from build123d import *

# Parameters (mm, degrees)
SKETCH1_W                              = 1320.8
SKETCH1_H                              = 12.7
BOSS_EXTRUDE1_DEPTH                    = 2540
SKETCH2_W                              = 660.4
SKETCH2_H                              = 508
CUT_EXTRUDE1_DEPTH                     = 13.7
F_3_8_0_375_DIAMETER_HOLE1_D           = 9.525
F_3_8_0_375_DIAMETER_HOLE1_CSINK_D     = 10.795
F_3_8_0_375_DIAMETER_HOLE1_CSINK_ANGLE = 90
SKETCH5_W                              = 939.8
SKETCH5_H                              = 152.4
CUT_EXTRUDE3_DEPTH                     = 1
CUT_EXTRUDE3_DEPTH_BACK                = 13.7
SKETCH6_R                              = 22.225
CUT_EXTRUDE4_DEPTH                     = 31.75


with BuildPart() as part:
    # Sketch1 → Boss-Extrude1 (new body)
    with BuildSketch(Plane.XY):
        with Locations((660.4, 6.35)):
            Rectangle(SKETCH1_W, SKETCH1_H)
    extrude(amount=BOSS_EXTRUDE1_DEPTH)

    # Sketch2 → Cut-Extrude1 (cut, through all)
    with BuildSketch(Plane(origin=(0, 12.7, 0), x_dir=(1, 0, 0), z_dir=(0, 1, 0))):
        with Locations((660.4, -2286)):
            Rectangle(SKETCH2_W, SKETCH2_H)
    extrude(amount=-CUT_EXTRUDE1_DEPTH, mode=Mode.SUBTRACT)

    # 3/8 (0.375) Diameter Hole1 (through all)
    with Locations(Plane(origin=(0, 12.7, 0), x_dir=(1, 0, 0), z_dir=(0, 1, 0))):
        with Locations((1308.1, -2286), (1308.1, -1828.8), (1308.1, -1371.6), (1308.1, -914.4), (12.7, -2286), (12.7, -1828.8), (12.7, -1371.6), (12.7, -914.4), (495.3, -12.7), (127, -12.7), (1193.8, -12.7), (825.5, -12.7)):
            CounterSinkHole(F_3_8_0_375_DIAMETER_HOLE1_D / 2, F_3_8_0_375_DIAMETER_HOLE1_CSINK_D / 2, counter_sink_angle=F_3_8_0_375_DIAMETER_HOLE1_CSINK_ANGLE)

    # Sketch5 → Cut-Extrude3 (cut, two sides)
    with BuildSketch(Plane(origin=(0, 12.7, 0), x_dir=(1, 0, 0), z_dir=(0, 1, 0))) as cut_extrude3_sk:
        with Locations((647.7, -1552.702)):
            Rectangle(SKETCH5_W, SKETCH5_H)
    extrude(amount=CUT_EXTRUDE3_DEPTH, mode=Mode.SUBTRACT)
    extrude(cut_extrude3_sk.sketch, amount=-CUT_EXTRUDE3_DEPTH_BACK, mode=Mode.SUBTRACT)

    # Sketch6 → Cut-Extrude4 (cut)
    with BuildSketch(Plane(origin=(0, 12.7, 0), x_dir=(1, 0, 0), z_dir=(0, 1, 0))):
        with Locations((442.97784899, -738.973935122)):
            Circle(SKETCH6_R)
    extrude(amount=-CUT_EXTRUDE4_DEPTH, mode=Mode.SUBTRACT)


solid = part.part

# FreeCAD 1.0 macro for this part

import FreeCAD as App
import Part
import Sketcher
from FreeCAD import Vector
Q = App.Units.Quantity

doc = App.newDocument("Part")
body = doc.addObject("PartDesign::Body", "Body")

# Sketch on XY plane
sketch1 = body.newObject("Sketcher::SketchObject", "Sketch")
sketch1.AttachmentSupport = (doc.getObject("XY_Plane"), [""])
sketch1.MapMode = "FlatFace"
sketch1.addGeometry([
    Part.LineSegment(Vector(0, 13, 0), Vector(0, 0, 0)),
    Part.LineSegment(Vector(0, 0, 0), Vector(1321, 0, 0)),
    Part.LineSegment(Vector(1321, 0, 0), Vector(1321, 13, 0)),
    Part.LineSegment(Vector(1321, 13, 0), Vector(0, 13, 0)),
], False)
sketch1.addConstraint([
    Sketcher.Constraint("Coincident", 0, 2, 1, 1),
    Sketcher.Constraint("Coincident", 1, 2, 2, 1),
    Sketcher.Constraint("Coincident", 2, 2, 3, 1),
    Sketcher.Constraint("Coincident", 3, 2, 0, 1),
    Sketcher.Constraint("Vertical", 0),
    Sketcher.Constraint("Horizontal", 1),
    Sketcher.Constraint("Vertical", 2),
    Sketcher.Constraint("Horizontal", 3),
    Sketcher.Constraint("Coincident", 0, 2, -1, 1),
    Sketcher.Constraint("DistanceX", 1, 1, 1, 2, Q("52 in")),
    Sketcher.Constraint("DistanceY", 0, 2, 0, 1, Q("0.5 in")),
])
pad1 = body.newObject("PartDesign::Pad", "Pad")
pad1.Profile = sketch1
pad1.Length = Q("100 in")

# Sketch on XZ plane
sketch2 = body.newObject("Sketcher::SketchObject", "Sketch001")
sketch2.AttachmentSupport = (doc.getObject("XZ_Plane"), [""])
sketch2.MapMode = "FlatFace"
sketch2.AttachmentOffset = App.Placement(Vector(0, 0, -0.5 * 25.4), App.Rotation())
sketch2.addGeometry([
    Part.LineSegment(Vector(330, 2032, 0), Vector(330, 2540, 0)),
    Part.LineSegment(Vector(330, 2540, 0), Vector(991, 2540, 0)),
    Part.LineSegment(Vector(991, 2540, 0), Vector(991, 2032, 0)),
    Part.LineSegment(Vector(991, 2032, 0), Vector(330, 2032, 0)),
], False)
sketch2.addConstraint([
    Sketcher.Constraint("Coincident", 0, 2, 1, 1),
    Sketcher.Constraint("Coincident", 1, 2, 2, 1),
    Sketcher.Constraint("Coincident", 2, 2, 3, 1),
    Sketcher.Constraint("Coincident", 3, 2, 0, 1),
    Sketcher.Constraint("Vertical", 0),
    Sketcher.Constraint("Horizontal", 1),
    Sketcher.Constraint("Vertical", 2),
    Sketcher.Constraint("Horizontal", 3),
    Sketcher.Constraint("DistanceX", 1, 1, 1, 2, Q("26 in")),
    Sketcher.Constraint("DistanceY", 0, 1, 0, 2, Q("20 in")),
    Sketcher.Constraint("DistanceX", -1, 1, 0, 2, Q("13 in")),
    Sketcher.Constraint("DistanceY", -1, 1, 0, 2, Q("100 in")),
])
pocket1 = body.newObject("PartDesign::Pocket", "Pocket")
pocket1.Profile = sketch2
pocket1.Type = "ThroughAll"
pocket1.Reversed = True

# Sketch on XZ plane
sketch3 = body.newObject("Sketcher::SketchObject", "Sketch002")
sketch3.AttachmentSupport = (doc.getObject("XZ_Plane"), [""])
sketch3.MapMode = "FlatFace"
sketch3.AttachmentOffset = App.Placement(Vector(0, 0, -0.5 * 25.4), App.Rotation())
sketch3.addGeometry([
    Part.Circle(Vector(1308.1, 2286, 0), Vector(0, 0, 1), 4.8),  # 0
    Part.Circle(Vector(1308.1, 1828.8, 0), Vector(0, 0, 1), 4.8),  # 1
    Part.Circle(Vector(1308.1, 1371.6, 0), Vector(0, 0, 1), 4.8),  # 2
    Part.Circle(Vector(1308.1, 914.4, 0), Vector(0, 0, 1), 4.8),  # 3
    Part.Circle(Vector(12.7, 2286, 0), Vector(0, 0, 1), 4.8),  # 4
    Part.Circle(Vector(12.7, 1828.8, 0), Vector(0, 0, 1), 4.8),  # 5
    Part.Circle(Vector(12.7, 1371.6, 0), Vector(0, 0, 1), 4.8),  # 6
    Part.Circle(Vector(12.7, 914.4, 0), Vector(0, 0, 1), 4.8),  # 7
    Part.Circle(Vector(495.3, 12.7, 0), Vector(0, 0, 1), 4.8),  # 8
    Part.Circle(Vector(127, 12.7, 0), Vector(0, 0, 1), 4.8),  # 9
    Part.Circle(Vector(1193.8, 12.7, 0), Vector(0, 0, 1), 4.8),  # 10
    Part.Circle(Vector(825.5, 12.7, 0), Vector(0, 0, 1), 4.8),  # 11
], False)
sketch3.addConstraint([
    Sketcher.Constraint("Equal", 0, 1),
    Sketcher.Constraint("Equal", 1, 2),
    Sketcher.Constraint("Equal", 2, 3),
    Sketcher.Constraint("Equal", 3, 4),
    Sketcher.Constraint("Equal", 4, 5),
    Sketcher.Constraint("Equal", 5, 6),
    Sketcher.Constraint("Equal", 6, 7),
    Sketcher.Constraint("Equal", 7, 8),
    Sketcher.Constraint("Equal", 8, 9),
    Sketcher.Constraint("Equal", 9, 10),
    Sketcher.Constraint("Equal", 10, 11),
    Sketcher.Constraint("Horizontal", 0, 3, 4, 3),
    Sketcher.Constraint("Horizontal", 1, 3, 5, 3),
    Sketcher.Constraint("Horizontal", 2, 3, 6, 3),
    Sketcher.Constraint("Horizontal", 3, 3, 7, 3),
    Sketcher.Constraint("Horizontal", 8, 3, 9, 3),
    Sketcher.Constraint("Horizontal", 9, 3, 10, 3),
    Sketcher.Constraint("Horizontal", 10, 3, 11, 3),
    Sketcher.Constraint("Vertical", 0, 3, 1, 3),
    Sketcher.Constraint("Vertical", 1, 3, 2, 3),
    Sketcher.Constraint("Vertical", 2, 3, 3, 3),
    Sketcher.Constraint("Vertical", 4, 3, 5, 3),
    Sketcher.Constraint("Vertical", 5, 3, 6, 3),
    Sketcher.Constraint("Vertical", 6, 3, 7, 3),
    Sketcher.Constraint("Diameter", 0, Q("0.375 in")),
    Sketcher.Constraint("DistanceY", -1, 1, 0, 3, Q("90 in")),
    Sketcher.Constraint("DistanceY", -1, 1, 1, 3, Q("72 in")),
    Sketcher.Constraint("DistanceY", -1, 1, 2, 3, Q("54 in")),
    Sketcher.Constraint("DistanceY", -1, 1, 3, 3, Q("36 in")),
    Sketcher.Constraint("DistanceX", -1, 1, 9, 3, Q("5 in")),
    Sketcher.Constraint("DistanceX", -1, 1, 10, 3, Q("47 in")),
    Sketcher.Constraint("DistanceX", 4, 3, 0, 3, Q("51 in")),
    Sketcher.Constraint("DistanceX", 7, 3, 8, 3, Q("19 in")),
    Sketcher.Constraint("DistanceX", 8, 3, 11, 3, Q("13 in")),
    Sketcher.Constraint("DistanceX", -1, 1, 0, 3, Q("51.5 in")),
    Sketcher.Constraint("DistanceY", -1, 1, 8, 3, Q("0.5 in")),
])
doc.recompute()
hole = body.newObject("PartDesign::Hole", "Hole")
hole.Profile = sketch3
hole.ThreadType = "None"
hole.Diameter = Q("0.375 in")
hole.DepthType = "ThroughAll"
hole.HoleCutType = "Countersink"
hole.HoleCutDiameter = Q("0.425 in")
hole.HoleCutCountersinkAngle = 90
hole.Reversed = True

# Sketch on XZ plane
sketch4 = body.newObject("Sketcher::SketchObject", "Sketch003")
sketch4.AttachmentSupport = (doc.getObject("XZ_Plane"), [""])
sketch4.MapMode = "FlatFace"
sketch4.AttachmentOffset = App.Placement(Vector(0, 0, -0.5 * 25.4), App.Rotation())
sketch4.addGeometry([
    Part.LineSegment(Vector(178, 1477, 0), Vector(178, 1629, 0)),
    Part.LineSegment(Vector(178, 1629, 0), Vector(1118, 1629, 0)),
    Part.LineSegment(Vector(1118, 1629, 0), Vector(1118, 1477, 0)),
    Part.LineSegment(Vector(1118, 1477, 0), Vector(178, 1477, 0)),
], False)
sketch4.addConstraint([
    Sketcher.Constraint("Coincident", 0, 2, 1, 1),
    Sketcher.Constraint("Coincident", 1, 2, 2, 1),
    Sketcher.Constraint("Coincident", 2, 2, 3, 1),
    Sketcher.Constraint("Coincident", 3, 2, 0, 1),
    Sketcher.Constraint("Vertical", 0),
    Sketcher.Constraint("Horizontal", 1),
    Sketcher.Constraint("Vertical", 2),
    Sketcher.Constraint("Horizontal", 3),
    Sketcher.Constraint("DistanceX", 1, 1, 1, 2, Q("37 in")),
    Sketcher.Constraint("DistanceY", 0, 1, 0, 2, Q("6 in")),
    Sketcher.Constraint("DistanceX", -1, 1, 0, 2, Q("7 in")),
    Sketcher.Constraint("DistanceY", -1, 1, 0, 2, Q("64.13 in")),
])
pocket2 = body.newObject("PartDesign::Pocket", "Pocket001")
pocket2.Profile = sketch4
pocket2.Type = "ThroughAll"
pocket2.Midplane = True

# Sketch on XZ plane
sketch5 = body.newObject("Sketcher::SketchObject", "Sketch004")
sketch5.AttachmentSupport = (doc.getObject("XZ_Plane"), [""])
sketch5.MapMode = "FlatFace"
sketch5.AttachmentOffset = App.Placement(Vector(0, 0, -0.5 * 25.4), App.Rotation())
sketch5.addGeometry(Part.Circle(Vector(443, 739, 0), Vector(0, 0, 1), 22), False)
sketch5.addConstraint([
    Sketcher.Constraint("Diameter", 0, Q("1.75 in")),
    Sketcher.Constraint("DistanceX", -1, 1, 0, 3, Q("442.977849 mm")),
    Sketcher.Constraint("DistanceY", -1, 1, 0, 3, Q("738.973935 mm")),
])
pocket3 = body.newObject("PartDesign::Pocket", "Pocket002")
pocket3.Profile = sketch5
pocket3.Length = Q("1.25 in")
pocket3.Reversed = True

doc.recompute()
